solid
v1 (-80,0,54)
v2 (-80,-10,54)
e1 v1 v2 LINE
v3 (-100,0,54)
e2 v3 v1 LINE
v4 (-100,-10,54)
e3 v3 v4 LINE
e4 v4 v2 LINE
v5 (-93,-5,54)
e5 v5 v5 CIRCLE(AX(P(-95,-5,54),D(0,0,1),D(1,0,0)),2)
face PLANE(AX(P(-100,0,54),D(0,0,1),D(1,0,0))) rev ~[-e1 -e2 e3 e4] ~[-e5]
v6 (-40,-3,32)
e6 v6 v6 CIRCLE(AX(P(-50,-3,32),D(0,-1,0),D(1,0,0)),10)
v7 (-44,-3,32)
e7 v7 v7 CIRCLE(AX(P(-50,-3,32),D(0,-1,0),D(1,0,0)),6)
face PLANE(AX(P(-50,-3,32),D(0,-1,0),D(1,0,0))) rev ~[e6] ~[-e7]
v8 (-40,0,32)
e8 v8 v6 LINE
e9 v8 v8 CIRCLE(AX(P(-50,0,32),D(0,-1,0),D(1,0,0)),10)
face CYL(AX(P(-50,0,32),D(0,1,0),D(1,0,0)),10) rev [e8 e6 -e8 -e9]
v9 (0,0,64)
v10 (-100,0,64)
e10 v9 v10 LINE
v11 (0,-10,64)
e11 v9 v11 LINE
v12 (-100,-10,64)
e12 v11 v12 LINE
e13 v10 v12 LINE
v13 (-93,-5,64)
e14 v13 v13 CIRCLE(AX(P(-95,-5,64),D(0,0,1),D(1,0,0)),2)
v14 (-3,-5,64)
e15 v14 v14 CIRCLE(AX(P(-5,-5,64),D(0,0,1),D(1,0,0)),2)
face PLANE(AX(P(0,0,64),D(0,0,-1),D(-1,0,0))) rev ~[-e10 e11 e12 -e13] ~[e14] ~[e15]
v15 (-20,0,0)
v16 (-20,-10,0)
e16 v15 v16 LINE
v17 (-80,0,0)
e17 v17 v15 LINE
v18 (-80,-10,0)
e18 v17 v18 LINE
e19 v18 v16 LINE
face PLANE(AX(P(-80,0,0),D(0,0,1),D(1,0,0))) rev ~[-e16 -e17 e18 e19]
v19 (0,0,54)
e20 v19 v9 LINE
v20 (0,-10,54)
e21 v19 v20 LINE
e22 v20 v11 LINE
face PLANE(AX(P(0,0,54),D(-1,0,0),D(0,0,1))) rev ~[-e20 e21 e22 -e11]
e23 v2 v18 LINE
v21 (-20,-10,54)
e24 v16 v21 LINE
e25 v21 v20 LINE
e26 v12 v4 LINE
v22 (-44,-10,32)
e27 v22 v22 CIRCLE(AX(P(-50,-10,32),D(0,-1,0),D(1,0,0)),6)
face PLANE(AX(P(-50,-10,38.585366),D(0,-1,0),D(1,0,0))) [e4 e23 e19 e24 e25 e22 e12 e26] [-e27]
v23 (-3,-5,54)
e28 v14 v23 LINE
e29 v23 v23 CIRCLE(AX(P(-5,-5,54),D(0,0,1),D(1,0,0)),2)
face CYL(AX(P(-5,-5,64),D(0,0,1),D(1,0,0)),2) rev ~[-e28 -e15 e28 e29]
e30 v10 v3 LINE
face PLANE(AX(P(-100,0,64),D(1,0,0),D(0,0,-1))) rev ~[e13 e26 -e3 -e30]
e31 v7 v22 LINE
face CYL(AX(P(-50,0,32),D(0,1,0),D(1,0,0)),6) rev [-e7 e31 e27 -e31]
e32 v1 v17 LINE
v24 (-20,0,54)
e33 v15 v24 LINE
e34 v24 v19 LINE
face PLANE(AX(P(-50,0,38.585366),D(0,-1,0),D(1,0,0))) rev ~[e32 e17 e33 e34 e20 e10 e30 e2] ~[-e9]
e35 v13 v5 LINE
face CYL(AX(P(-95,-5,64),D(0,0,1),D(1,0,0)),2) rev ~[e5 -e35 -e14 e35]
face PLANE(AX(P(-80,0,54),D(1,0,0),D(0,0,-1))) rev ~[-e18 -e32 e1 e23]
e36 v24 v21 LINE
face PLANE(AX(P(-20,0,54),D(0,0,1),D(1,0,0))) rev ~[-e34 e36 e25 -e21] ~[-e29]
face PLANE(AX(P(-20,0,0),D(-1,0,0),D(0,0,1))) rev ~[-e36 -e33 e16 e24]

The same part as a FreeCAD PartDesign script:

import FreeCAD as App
import Part
import Sketcher

V = App.Vector


def add_polygon(sketch, points):
    """Adds a closed chain of lines whose ends are joined by coincident constraints."""
    first, n = sketch.GeometryCount, len(points)
    for a, b in zip(points, points[1:] + points[:1]):
        sketch.addGeometry(Part.LineSegment(App.Vector(*a, 0), App.Vector(*b, 0)), False)
    for i in range(n):
        sketch.addConstraint(Sketcher.Constraint("Coincident", first + i, 2, first + (i + 1) % n, 1))

doc = App.newDocument("Part")
body = doc.addObject("PartDesign::Body", "Body")

# Sketch on XZ plane
sketch1 = doc.addObject("Sketcher::SketchObject", "Sketch")
body.addObject(sketch1)
sketch1.AttachmentSupport = (doc.XZ_Plane, [""])
sketch1.MapMode = "FlatFace"
add_polygon(sketch1, [(0, 64), (-100, 64), (-100, 54), (-80, 54), (-80, 0), (-20, 0), (-20, 54), (0, 54)])  # lines 0-7
sketch1.addGeometry(Part.Circle(V(-50, 32, 0), V(0, 0, 1), 6), False)  # 8
sketch1.addConstraint(Sketcher.Constraint("Horizontal", 0))
sketch1.addConstraint(Sketcher.Constraint("Vertical", 1))
sketch1.addConstraint(Sketcher.Constraint("Horizontal", 2))
sketch1.addConstraint(Sketcher.Constraint("Vertical", 3))
sketch1.addConstraint(Sketcher.Constraint("Horizontal", 4))
sketch1.addConstraint(Sketcher.Constraint("Vertical", 5))
sketch1.addConstraint(Sketcher.Constraint("Horizontal", 6))
sketch1.addConstraint(Sketcher.Constraint("Vertical", 7))
sketch1.addConstraint(Sketcher.Constraint("PointOnObject", 3, 2, -1))
sketch1.addConstraint(Sketcher.Constraint("PointOnObject", 6, 2, -2))
sketch1.addConstraint(Sketcher.Constraint("Horizontal", 2, 2, 5, 2))
sketch1.addConstraint(Sketcher.Constraint("Equal", 2, 6))
sketch1.addConstraint(Sketcher.Constraint("Diameter", 8, 12.0))
sketch1.addConstraint(Sketcher.Constraint("DistanceX", 0, 2, 0, 1, 100.0))
sketch1.addConstraint(Sketcher.Constraint("DistanceX", 2, 1, 2, 2, 20.0))
sketch1.addConstraint(Sketcher.Constraint("DistanceY", 1, 2, 1, 1, 10.0))
sketch1.addConstraint(Sketcher.Constraint("DistanceY", 3, 2, 3, 1, 54.0))
sketch1.addConstraint(Sketcher.Constraint("DistanceX", 8, 3, -1, 1, 50.0))
sketch1.addConstraint(Sketcher.Constraint("DistanceY", -1, 1, 8, 3, 32.0))
pad1 = doc.addObject("PartDesign::Pad", "Pad")
body.addObject(pad1)
pad1.Profile = sketch1
pad1.Length = 10

# Sketch on XY plane
sketch2 = doc.addObject("Sketcher::SketchObject", "Sketch001")
body.addObject(sketch2)
sketch2.AttachmentSupport = (doc.XY_Plane, [""])
sketch2.MapMode = "FlatFace"
sketch2.AttachmentOffset = App.Placement(V(0, 0, 64), App.Rotation())
sketch2.addGeometry(Part.Circle(V(-95, -5, 0), V(0, 0, 1), 2), False)
sketch2.addGeometry(Part.Circle(V(-5, -5, 0), V(0, 0, 1), 2), False)
sketch2.addConstraint(Sketcher.Constraint("Equal", 0, 1))
sketch2.addConstraint(Sketcher.Constraint("Horizontal", 0, 3, 1, 3))
sketch2.addConstraint(Sketcher.Constraint("Diameter", 0, 4.0))
sketch2.addConstraint(Sketcher.Constraint("DistanceX", 0, 3, -1, 1, 95.0))
sketch2.addConstraint(Sketcher.Constraint("DistanceY", 0, 3, -1, 1, 5.0))
sketch2.addConstraint(Sketcher.Constraint("DistanceX", 1, 3, -1, 1, 5.0))
pocket1 = doc.addObject("PartDesign::Pocket", "Pocket")
body.addObject(pocket1)
pocket1.Profile = sketch2
pocket1.Type = "ThroughAll"

# Sketch on XZ plane
sketch3 = doc.addObject("Sketcher::SketchObject", "Sketch002")
body.addObject(sketch3)
sketch3.AttachmentSupport = (doc.XZ_Plane, [""])
sketch3.MapMode = "FlatFace"
sketch3.addGeometry(Part.Circle(V(-50, 32, 0), V(0, 0, 1), 10), False)
sketch3.addGeometry(Part.Circle(V(-50, 32, 0), V(0, 0, 1), 6), False)
sketch3.addConstraint(Sketcher.Constraint("Coincident", 1, 3, 0, 3))
sketch3.addConstraint(Sketcher.Constraint("Diameter", 0, 20.0))
sketch3.addConstraint(Sketcher.Constraint("Diameter", 1, 12.0))
sketch3.addConstraint(Sketcher.Constraint("DistanceX", 0, 3, -1, 1, 50.0))
sketch3.addConstraint(Sketcher.Constraint("DistanceY", -1, 1, 0, 3, 32.0))
pocket2 = doc.addObject("PartDesign::Pocket", "Pocket001")
body.addObject(pocket2)
pocket2.Profile = sketch3
pocket2.Length = 3
pocket2.Reversed = True

doc.recompute()
